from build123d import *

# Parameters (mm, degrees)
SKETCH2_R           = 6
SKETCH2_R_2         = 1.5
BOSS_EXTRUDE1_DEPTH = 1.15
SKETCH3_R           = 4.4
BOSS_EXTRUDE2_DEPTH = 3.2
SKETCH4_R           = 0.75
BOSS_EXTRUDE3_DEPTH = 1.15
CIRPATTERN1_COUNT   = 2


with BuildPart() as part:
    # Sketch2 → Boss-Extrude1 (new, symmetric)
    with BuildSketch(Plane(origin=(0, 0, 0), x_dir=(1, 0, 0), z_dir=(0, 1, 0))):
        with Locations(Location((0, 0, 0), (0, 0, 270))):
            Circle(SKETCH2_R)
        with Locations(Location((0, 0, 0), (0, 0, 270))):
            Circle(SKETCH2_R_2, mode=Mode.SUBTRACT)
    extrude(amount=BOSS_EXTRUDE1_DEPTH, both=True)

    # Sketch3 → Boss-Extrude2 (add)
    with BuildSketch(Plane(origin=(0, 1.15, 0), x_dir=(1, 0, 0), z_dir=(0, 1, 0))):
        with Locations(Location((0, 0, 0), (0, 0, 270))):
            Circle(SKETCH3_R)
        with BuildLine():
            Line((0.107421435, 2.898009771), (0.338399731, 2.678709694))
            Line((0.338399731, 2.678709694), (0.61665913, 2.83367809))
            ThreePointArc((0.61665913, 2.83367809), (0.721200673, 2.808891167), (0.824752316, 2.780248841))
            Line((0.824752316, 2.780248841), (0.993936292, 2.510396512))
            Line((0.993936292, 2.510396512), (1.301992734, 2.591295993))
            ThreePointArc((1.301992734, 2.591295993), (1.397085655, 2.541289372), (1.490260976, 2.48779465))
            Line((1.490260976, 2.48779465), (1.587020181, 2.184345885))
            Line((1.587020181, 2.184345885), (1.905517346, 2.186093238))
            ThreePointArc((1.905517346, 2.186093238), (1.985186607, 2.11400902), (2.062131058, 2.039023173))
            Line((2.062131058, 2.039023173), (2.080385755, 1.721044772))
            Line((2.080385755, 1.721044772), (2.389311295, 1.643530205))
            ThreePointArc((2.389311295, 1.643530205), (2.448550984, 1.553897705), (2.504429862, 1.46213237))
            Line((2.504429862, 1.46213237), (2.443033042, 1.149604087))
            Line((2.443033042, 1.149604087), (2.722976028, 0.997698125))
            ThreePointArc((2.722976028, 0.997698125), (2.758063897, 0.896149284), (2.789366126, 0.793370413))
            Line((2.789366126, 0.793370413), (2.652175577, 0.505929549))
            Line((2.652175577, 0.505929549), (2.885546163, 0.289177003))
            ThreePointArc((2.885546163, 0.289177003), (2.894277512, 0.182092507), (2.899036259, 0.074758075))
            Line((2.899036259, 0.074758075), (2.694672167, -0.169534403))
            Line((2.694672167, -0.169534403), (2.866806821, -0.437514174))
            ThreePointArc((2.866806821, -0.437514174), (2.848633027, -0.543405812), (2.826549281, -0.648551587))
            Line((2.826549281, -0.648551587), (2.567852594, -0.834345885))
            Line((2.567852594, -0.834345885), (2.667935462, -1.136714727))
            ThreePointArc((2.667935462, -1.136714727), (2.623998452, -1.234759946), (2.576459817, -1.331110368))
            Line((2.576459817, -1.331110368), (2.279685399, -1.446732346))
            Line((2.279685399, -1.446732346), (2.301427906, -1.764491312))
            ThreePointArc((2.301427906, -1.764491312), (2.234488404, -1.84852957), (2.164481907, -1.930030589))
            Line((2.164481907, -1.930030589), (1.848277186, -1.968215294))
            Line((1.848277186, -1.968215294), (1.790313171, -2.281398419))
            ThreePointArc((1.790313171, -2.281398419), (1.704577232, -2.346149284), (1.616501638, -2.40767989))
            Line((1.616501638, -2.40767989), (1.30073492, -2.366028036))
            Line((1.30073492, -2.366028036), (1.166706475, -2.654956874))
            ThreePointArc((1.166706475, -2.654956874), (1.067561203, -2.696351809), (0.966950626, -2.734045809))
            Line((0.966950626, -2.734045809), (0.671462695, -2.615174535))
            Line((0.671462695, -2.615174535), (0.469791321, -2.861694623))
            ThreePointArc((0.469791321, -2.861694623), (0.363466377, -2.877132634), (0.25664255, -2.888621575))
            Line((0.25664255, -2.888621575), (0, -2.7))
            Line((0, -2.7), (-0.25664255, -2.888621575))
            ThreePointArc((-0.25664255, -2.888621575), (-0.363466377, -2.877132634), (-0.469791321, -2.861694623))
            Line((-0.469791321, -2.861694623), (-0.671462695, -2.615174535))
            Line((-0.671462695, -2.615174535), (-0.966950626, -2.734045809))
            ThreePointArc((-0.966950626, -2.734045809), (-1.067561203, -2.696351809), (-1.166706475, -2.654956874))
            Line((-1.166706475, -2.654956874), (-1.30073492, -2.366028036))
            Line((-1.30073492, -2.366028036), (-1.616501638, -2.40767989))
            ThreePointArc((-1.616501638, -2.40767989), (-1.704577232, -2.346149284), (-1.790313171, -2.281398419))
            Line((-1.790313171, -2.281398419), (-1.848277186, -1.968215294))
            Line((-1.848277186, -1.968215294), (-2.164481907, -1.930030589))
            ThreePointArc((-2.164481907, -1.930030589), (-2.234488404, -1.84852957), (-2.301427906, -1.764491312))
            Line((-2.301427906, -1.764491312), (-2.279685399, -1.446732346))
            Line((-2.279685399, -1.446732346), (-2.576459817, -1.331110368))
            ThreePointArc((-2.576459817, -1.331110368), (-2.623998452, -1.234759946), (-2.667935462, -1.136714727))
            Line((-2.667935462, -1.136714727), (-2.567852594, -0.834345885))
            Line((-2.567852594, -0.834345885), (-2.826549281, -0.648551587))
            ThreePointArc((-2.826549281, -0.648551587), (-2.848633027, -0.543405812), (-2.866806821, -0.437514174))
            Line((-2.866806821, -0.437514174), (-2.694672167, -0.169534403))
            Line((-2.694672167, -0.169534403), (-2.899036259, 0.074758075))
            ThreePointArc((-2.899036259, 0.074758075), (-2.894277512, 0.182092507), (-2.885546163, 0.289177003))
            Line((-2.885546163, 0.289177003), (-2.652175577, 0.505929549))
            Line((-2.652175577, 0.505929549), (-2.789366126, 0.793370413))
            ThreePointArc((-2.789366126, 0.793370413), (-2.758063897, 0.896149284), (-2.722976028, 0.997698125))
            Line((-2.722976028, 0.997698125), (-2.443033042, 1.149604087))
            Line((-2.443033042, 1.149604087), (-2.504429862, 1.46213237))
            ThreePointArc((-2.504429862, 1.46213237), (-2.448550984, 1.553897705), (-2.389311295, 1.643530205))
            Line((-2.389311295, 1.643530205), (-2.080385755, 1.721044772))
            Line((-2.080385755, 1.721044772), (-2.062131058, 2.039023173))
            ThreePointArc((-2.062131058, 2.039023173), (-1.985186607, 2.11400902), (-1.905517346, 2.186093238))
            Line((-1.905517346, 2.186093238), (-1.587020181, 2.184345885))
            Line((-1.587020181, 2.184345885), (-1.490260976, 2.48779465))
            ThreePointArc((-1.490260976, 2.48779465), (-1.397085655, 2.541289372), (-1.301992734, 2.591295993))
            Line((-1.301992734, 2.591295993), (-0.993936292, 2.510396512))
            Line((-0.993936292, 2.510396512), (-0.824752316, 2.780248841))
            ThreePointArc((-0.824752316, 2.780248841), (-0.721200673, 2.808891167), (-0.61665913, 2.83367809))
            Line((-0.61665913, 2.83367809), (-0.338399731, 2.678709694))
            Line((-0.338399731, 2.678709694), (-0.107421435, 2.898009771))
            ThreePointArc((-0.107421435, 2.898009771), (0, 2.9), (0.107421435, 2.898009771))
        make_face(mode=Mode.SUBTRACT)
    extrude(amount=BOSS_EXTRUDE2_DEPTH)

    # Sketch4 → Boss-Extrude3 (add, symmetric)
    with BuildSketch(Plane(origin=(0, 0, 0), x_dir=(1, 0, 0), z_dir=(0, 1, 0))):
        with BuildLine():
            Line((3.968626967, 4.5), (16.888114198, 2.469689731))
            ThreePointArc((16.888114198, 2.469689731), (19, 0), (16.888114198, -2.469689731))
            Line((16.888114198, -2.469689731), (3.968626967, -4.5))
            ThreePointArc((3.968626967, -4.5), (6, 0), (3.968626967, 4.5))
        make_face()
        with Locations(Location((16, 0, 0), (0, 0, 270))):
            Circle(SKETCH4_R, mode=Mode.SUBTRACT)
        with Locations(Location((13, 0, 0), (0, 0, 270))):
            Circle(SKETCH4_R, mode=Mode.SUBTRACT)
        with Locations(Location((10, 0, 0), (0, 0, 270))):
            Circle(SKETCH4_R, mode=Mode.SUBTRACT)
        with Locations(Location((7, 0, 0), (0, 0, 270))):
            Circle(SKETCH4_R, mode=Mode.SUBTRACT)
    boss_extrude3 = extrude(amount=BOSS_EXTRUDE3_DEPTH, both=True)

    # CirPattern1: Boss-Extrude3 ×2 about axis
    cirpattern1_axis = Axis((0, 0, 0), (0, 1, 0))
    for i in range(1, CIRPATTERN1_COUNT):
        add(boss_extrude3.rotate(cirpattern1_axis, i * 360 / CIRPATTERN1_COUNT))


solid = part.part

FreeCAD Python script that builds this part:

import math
import FreeCAD as App
import Part
import Sketcher

V = App.Vector

doc = App.newDocument("Part")
body = doc.addObject("PartDesign::Body", "Body")

# Sketch on XZ plane
sketch1 = body.newObject("Sketcher::SketchObject", "Sketch")
sketch1.AttachmentSupport = (doc.getObject("XZ_Plane"), [""])
sketch1.MapMode = "FlatFace"
sketch1.addGeometry([
    Part.Circle(V(0, 0, 0), V(0, 0, 1), 6),
    Part.Circle(V(0, 0, 0), V(0, 0, 1), 1.5),
], False)
sketch1.addConstraint([
    Sketcher.Constraint("Coincident", 0, 3, -1, 1),
    Sketcher.Constraint("Coincident", 1, 3, -1, 1),
    Sketcher.Constraint("Diameter", 0, 12.0),
    Sketcher.Constraint("Diameter", 1, 3.0),
])
pad1 = body.newObject("PartDesign::Pad", "Pad")
pad1.Profile = sketch1
pad1.Length = 2.3
pad1.Midplane = True

# Sketch on XZ plane
sketch2 = body.newObject("Sketcher::SketchObject", "Sketch001")
sketch2.AttachmentSupport = (doc.getObject("XZ_Plane"), [""])
sketch2.MapMode = "FlatFace"
sketch2.AttachmentOffset = App.Placement(V(0, 0, -1.15), App.Rotation())
sketch2.addGeometry([
    Part.Circle(V(0, 0, 0), V(0, 0, 1), 4.4),  # 0
    Part.ArcOfCircle(Part.Circle(V(0, 0, 0), V(0, 0, 1), 2.9), math.radians(-92.12), math.radians(-87.88)),  # 1
    Part.LineSegment(V(0.11, -2.9, 0), V(0.34, -2.68, 0)),  # 2
    Part.LineSegment(V(0.34, -2.68, 0), V(0.62, -2.83, 0)),  # 3
    Part.ArcOfCircle(Part.Circle(V(0, 0, 0), V(0, 0, 1), 2.9), math.radians(-77.72), math.radians(-73.48)),  # 4
    Part.LineSegment(V(0.82, -2.78, 0), V(0.99, -2.51, 0)),  # 5
    Part.LineSegment(V(0.99, -2.51, 0), V(1.3, -2.59, 0)),  # 6
    Part.ArcOfCircle(Part.Circle(V(0, 0, 0), V(0, 0, 1), 2.9), math.radians(-63.32), math.radians(-59.08)),  # 7
    Part.LineSegment(V(1.49, -2.49, 0), V(1.59, -2.18, 0)),  # 8
    Part.LineSegment(V(1.59, -2.18, 0), V(1.91, -2.19, 0)),  # 9
    Part.ArcOfCircle(Part.Circle(V(0, 0, 0), V(0, 0, 1), 2.9), math.radians(-48.92), math.radians(-44.68)),  # 10
    Part.LineSegment(V(2.06, -2.04, 0), V(2.08, -1.72, 0)),  # 11
    Part.LineSegment(V(2.08, -1.72, 0), V(2.39, -1.64, 0)),  # 12
    Part.ArcOfCircle(Part.Circle(V(0, 0, 0), V(0, 0, 1), 2.9), math.radians(-34.52), math.radians(-30.28)),  # 13
    Part.LineSegment(V(2.5, -1.46, 0), V(2.44, -1.15, 0)),  # 14
    Part.LineSegment(V(2.44, -1.15, 0), V(2.72, -1, 0)),  # 15
    Part.ArcOfCircle(Part.Circle(V(0, 0, 0), V(0, 0, 1), 2.9), math.radians(-20.12), math.radians(-15.88)),  # 16
    Part.LineSegment(V(2.79, -0.79, 0), V(2.65, -0.51, 0)),  # 17
    Part.LineSegment(V(2.65, -0.51, 0), V(2.89, -0.29, 0)),  # 18
    Part.ArcOfCircle(Part.Circle(V(0, 0, 0), V(0, 0, 1), 2.9), math.radians(-5.72), math.radians(-1.48)),  # 19
    Part.LineSegment(V(2.9, -0.07, 0), V(2.69, 0.17, 0)),  # 20
    Part.LineSegment(V(2.69, 0.17, 0), V(2.87, 0.44, 0)),  # 21
    Part.ArcOfCircle(Part.Circle(V(0, 0, 0), V(0, 0, 1), 2.9), math.radians(8.68), math.radians(12.92)),  # 22
    Part.LineSegment(V(2.83, 0.65, 0), V(2.57, 0.83, 0)),  # 23
    Part.LineSegment(V(2.57, 0.83, 0), V(2.67, 1.14, 0)),  # 24
    Part.ArcOfCircle(Part.Circle(V(0, 0, 0), V(0, 0, 1), 2.9), math.radians(23.08), math.radians(27.32)),  # 25
    Part.LineSegment(V(2.58, 1.33, 0), V(2.28, 1.45, 0)),  # 26
    Part.LineSegment(V(2.28, 1.45, 0), V(2.3, 1.76, 0)),  # 27
    Part.ArcOfCircle(Part.Circle(V(0, 0, 0), V(0, 0, 1), 2.9), math.radians(37.48), math.radians(41.72)),  # 28
    Part.LineSegment(V(2.16, 1.93, 0), V(1.85, 1.97, 0)),  # 29
    Part.LineSegment(V(1.85, 1.97, 0), V(1.79, 2.28, 0)),  # 30
    Part.ArcOfCircle(Part.Circle(V(0, 0, 0), V(0, 0, 1), 2.9), math.radians(51.88), math.radians(56.12)),  # 31
    Part.LineSegment(V(1.62, 2.41, 0), V(1.3, 2.37, 0)),  # 32
    Part.LineSegment(V(1.3, 2.37, 0), V(1.17, 2.65, 0)),  # 33
    Part.ArcOfCircle(Part.Circle(V(0, 0, 0), V(0, 0, 1), 2.9), math.radians(66.28), math.radians(70.52)),  # 34
    Part.LineSegment(V(0.97, 2.73, 0), V(0.67, 2.62, 0)),  # 35
    Part.LineSegment(V(0.67, 2.62, 0), V(0.47, 2.86, 0)),  # 36
    Part.ArcOfCircle(Part.Circle(V(0, 0, 0), V(0, 0, 1), 2.9), math.radians(80.68), math.radians(84.92)),  # 37
    Part.LineSegment(V(0.26, 2.89, 0), V(0, 2.7, 0)),  # 38
    Part.LineSegment(V(0, 2.7, 0), V(-0.26, 2.89, 0)),  # 39
    Part.ArcOfCircle(Part.Circle(V(0, 0, 0), V(0, 0, 1), 2.9), math.radians(95.08), math.radians(99.32)),  # 40
    Part.LineSegment(V(-0.47, 2.86, 0), V(-0.67, 2.62, 0)),  # 41
    Part.LineSegment(V(-0.67, 2.62, 0), V(-0.97, 2.73, 0)),  # 42
    Part.ArcOfCircle(Part.Circle(V(0, 0, 0), V(0, 0, 1), 2.9), math.radians(109.48), math.radians(113.72)),  # 43
    Part.LineSegment(V(-1.17, 2.65, 0), V(-1.3, 2.37, 0)),  # 44
    Part.LineSegment(V(-1.3, 2.37, 0), V(-1.62, 2.41, 0)),  # 45
    Part.ArcOfCircle(Part.Circle(V(0, 0, 0), V(0, 0, 1), 2.9), math.radians(123.88), math.radians(128.12)),  # 46
    Part.LineSegment(V(-1.79, 2.28, 0), V(-1.85, 1.97, 0)),  # 47
    Part.LineSegment(V(-1.85, 1.97, 0), V(-2.16, 1.93, 0)),  # 48
    Part.ArcOfCircle(Part.Circle(V(0, 0, 0), V(0, 0, 1), 2.9), math.radians(138.28), math.radians(142.52)),  # 49
    Part.LineSegment(V(-2.3, 1.76, 0), V(-2.28, 1.45, 0)),  # 50
    Part.LineSegment(V(-2.28, 1.45, 0), V(-2.58, 1.33, 0)),  # 51
    Part.ArcOfCircle(Part.Circle(V(0, 0, 0), V(0, 0, 1), 2.9), math.radians(152.68), math.radians(156.92)),  # 52
    Part.LineSegment(V(-2.67, 1.14, 0), V(-2.57, 0.83, 0)),  # 53
    Part.LineSegment(V(-2.57, 0.83, 0), V(-2.83, 0.65, 0)),  # 54
    Part.ArcOfCircle(Part.Circle(V(0, 0, 0), V(0, 0, 1), 2.9), math.radians(167.08), math.radians(171.32)),  # 55
    Part.LineSegment(V(-2.87, 0.44, 0), V(-2.69, 0.17, 0)),  # 56
    Part.LineSegment(V(-2.69, 0.17, 0), V(-2.9, -0.07, 0)),  # 57
    Part.ArcOfCircle(Part.Circle(V(0, 0, 0), V(0, 0, 1), 2.9), math.radians(-178.52), math.radians(-174.28)),  # 58
    Part.LineSegment(V(-2.89, -0.29, 0), V(-2.65, -0.51, 0)),  # 59
    Part.LineSegment(V(-2.65, -0.51, 0), V(-2.79, -0.79, 0)),  # 60
    Part.ArcOfCircle(Part.Circle(V(0, 0, 0), V(0, 0, 1), 2.9), math.radians(-164.12), math.radians(-159.88)),  # 61
    Part.LineSegment(V(-2.72, -1, 0), V(-2.44, -1.15, 0)),  # 62
    Part.LineSegment(V(-2.44, -1.15, 0), V(-2.5, -1.46, 0)),  # 63
    Part.ArcOfCircle(Part.Circle(V(0, 0, 0), V(0, 0, 1), 2.9), math.radians(-149.72), math.radians(-145.48)),  # 64
    Part.LineSegment(V(-2.39, -1.64, 0), V(-2.08, -1.72, 0)),  # 65
    Part.LineSegment(V(-2.08, -1.72, 0), V(-2.06, -2.04, 0)),  # 66
    Part.ArcOfCircle(Part.Circle(V(0, 0, 0), V(0, 0, 1), 2.9), math.radians(-135.32), math.radians(-131.08)),  # 67
    Part.LineSegment(V(-1.91, -2.19, 0), V(-1.59, -2.18, 0)),  # 68
    Part.LineSegment(V(-1.59, -2.18, 0), V(-1.49, -2.49, 0)),  # 69
    Part.ArcOfCircle(Part.Circle(V(0, 0, 0), V(0, 0, 1), 2.9), math.radians(-120.92), math.radians(-116.68)),  # 70
    Part.LineSegment(V(-1.3, -2.59, 0), V(-0.99, -2.51, 0)),  # 71
    Part.LineSegment(V(-0.99, -2.51, 0), V(-0.82, -2.78, 0)),  # 72
    Part.ArcOfCircle(Part.Circle(V(0, 0, 0), V(0, 0, 1), 2.9), math.radians(-106.52), math.radians(-102.28)),  # 73
    Part.LineSegment(V(-0.62, -2.83, 0), V(-0.34, -2.68, 0)),  # 74
    Part.LineSegment(V(-0.34, -2.68, 0), V(-0.11, -2.9, 0)),  # 75
], False)
sketch2.addConstraint([
    Sketcher.Constraint("Coincident", 1, 2, 2, 1),
    Sketcher.Constraint("Coincident", 2, 2, 3, 1),
    Sketcher.Constraint("Coincident", 3, 2, 4, 1),
    Sketcher.Constraint("Coincident", 4, 2, 5, 1),
    Sketcher.Constraint("Coincident", 5, 2, 6, 1),
    Sketcher.Constraint("Coincident", 6, 2, 7, 1),
    Sketcher.Constraint("Coincident", 7, 2, 8, 1),
    Sketcher.Constraint("Coincident", 8, 2, 9, 1),
    Sketcher.Constraint("Coincident", 9, 2, 10, 1),
    Sketcher.Constraint("Coincident", 10, 2, 11, 1),
    Sketcher.Constraint("Coincident", 11, 2, 12, 1),
    Sketcher.Constraint("Coincident", 12, 2, 13, 1),
    Sketcher.Constraint("Coincident", 13, 2, 14, 1),
    Sketcher.Constraint("Coincident", 14, 2, 15, 1),
    Sketcher.Constraint("Coincident", 15, 2, 16, 1),
    Sketcher.Constraint("Coincident", 16, 2, 17, 1),
    Sketcher.Constraint("Coincident", 17, 2, 18, 1),
    Sketcher.Constraint("Coincident", 18, 2, 19, 1),
    Sketcher.Constraint("Coincident", 19, 2, 20, 1),
    Sketcher.Constraint("Coincident", 20, 2, 21, 1),
    Sketcher.Constraint("Coincident", 21, 2, 22, 1),
    Sketcher.Constraint("Coincident", 22, 2, 23, 1),
    Sketcher.Constraint("Coincident", 23, 2, 24, 1),
    Sketcher.Constraint("Coincident", 24, 2, 25, 1),
    Sketcher.Constraint("Coincident", 25, 2, 26, 1),
    Sketcher.Constraint("Coincident", 26, 2, 27, 1),
    Sketcher.Constraint("Coincident", 27, 2, 28, 1),
    Sketcher.Constraint("Coincident", 28, 2, 29, 1),
    Sketcher.Constraint("Coincident", 29, 2, 30, 1),
    Sketcher.Constraint("Coincident", 30, 2, 31, 1),
    Sketcher.Constraint("Coincident", 31, 2, 32, 1),
    Sketcher.Constraint("Coincident", 32, 2, 33, 1),
    Sketcher.Constraint("Coincident", 33, 2, 34, 1),
    Sketcher.Constraint("Coincident", 34, 2, 35, 1),
    Sketcher.Constraint("Coincident", 35, 2, 36, 1),
    Sketcher.Constraint("Coincident", 36, 2, 37, 1),
    Sketcher.Constraint("Coincident", 37, 2, 38, 1),
    Sketcher.Constraint("Coincident", 38, 2, 39, 1),
    Sketcher.Constraint("Coincident", 39, 2, 40, 1),
    Sketcher.Constraint("Coincident", 40, 2, 41, 1),
    Sketcher.Constraint("Coincident", 41, 2, 42, 1),
    Sketcher.Constraint("Coincident", 42, 2, 43, 1),
    Sketcher.Constraint("Coincident", 43, 2, 44, 1),
    Sketcher.Constraint("Coincident", 44, 2, 45, 1),
    Sketcher.Constraint("Coincident", 45, 2, 46, 1),
    Sketcher.Constraint("Coincident", 46, 2, 47, 1),
    Sketcher.Constraint("Coincident", 47, 2, 48, 1),
    Sketcher.Constraint("Coincident", 48, 2, 49, 1),
    Sketcher.Constraint("Coincident", 49, 2, 50, 1),
    Sketcher.Constraint("Coincident", 50, 2, 51, 1),
    Sketcher.Constraint("Coincident", 51, 2, 52, 1),
    Sketcher.Constraint("Coincident", 52, 2, 53, 1),
    Sketcher.Constraint("Coincident", 53, 2, 54, 1),
    Sketcher.Constraint("Coincident", 54, 2, 55, 1),
    Sketcher.Constraint("Coincident", 55, 2, 56, 1),
    Sketcher.Constraint("Coincident", 56, 2, 57, 1),
    Sketcher.Constraint("Coincident", 57, 2, 58, 1),
    Sketcher.Constraint("Coincident", 58, 2, 59, 1),
    Sketcher.Constraint("Coincident", 59, 2, 60, 1),
    Sketcher.Constraint("Coincident", 60, 2, 61, 1),
    Sketcher.Constraint("Coincident", 61, 2, 62, 1),
    Sketcher.Constraint("Coincident", 62, 2, 63, 1),
    Sketcher.Constraint("Coincident", 63, 2, 64, 1),
    Sketcher.Constraint("Coincident", 64, 2, 65, 1),
    Sketcher.Constraint("Coincident", 65, 2, 66, 1),
    Sketcher.Constraint("Coincident", 66, 2, 67, 1),
    Sketcher.Constraint("Coincident", 67, 2, 68, 1),
    Sketcher.Constraint("Coincident", 68, 2, 69, 1),
    Sketcher.Constraint("Coincident", 69, 2, 70, 1),
    Sketcher.Constraint("Coincident", 70, 2, 71, 1),
    Sketcher.Constraint("Coincident", 71, 2, 72, 1),
    Sketcher.Constraint("Coincident", 72, 2, 73, 1),
    Sketcher.Constraint("Coincident", 73, 2, 74, 1),
    Sketcher.Constraint("Coincident", 74, 2, 75, 1),
    Sketcher.Constraint("Coincident", 75, 2, 1, 1),
    Sketcher.Constraint("Coincident", 0, 3, -1, 1),
    Sketcher.Constraint("Coincident", 1, 3, -1, 1),
    Sketcher.Constraint("Coincident", 4, 3, -1, 1),
    Sketcher.Constraint("Coincident", 7, 3, -1, 1),
    Sketcher.Constraint("Coincident", 10, 3, -1, 1),
    Sketcher.Constraint("Coincident", 13, 3, -1, 1),
    Sketcher.Constraint("Coincident", 16, 3, -1, 1),
    Sketcher.Constraint("Coincident", 19, 3, -1, 1),
    Sketcher.Constraint("Coincident", 22, 3, -1, 1),
    Sketcher.Constraint("Coincident", 25, 3, -1, 1),
    Sketcher.Constraint("Coincident", 28, 3, -1, 1),
    Sketcher.Constraint("Coincident", 31, 3, -1, 1),
    Sketcher.Constraint("Coincident", 34, 3, -1, 1),
    Sketcher.Constraint("Coincident", 37, 3, -1, 1),
    Sketcher.Constraint("Coincident", 40, 3, -1, 1),
    Sketcher.Constraint("Coincident", 43, 3, -1, 1),
    Sketcher.Constraint("Coincident", 46, 3, -1, 1),
    Sketcher.Constraint("Coincident", 49, 3, -1, 1),
    Sketcher.Constraint("Coincident", 52, 3, -1, 1),
    Sketcher.Constraint("Coincident", 55, 3, -1, 1),
    Sketcher.Constraint("Coincident", 58, 3, -1, 1),
    Sketcher.Constraint("Coincident", 61, 3, -1, 1),
    Sketcher.Constraint("Coincident", 64, 3, -1, 1),
    Sketcher.Constraint("Coincident", 67, 3, -1, 1),
    Sketcher.Constraint("Coincident", 70, 3, -1, 1),
    Sketcher.Constraint("Coincident", 73, 3, -1, 1),
    Sketcher.Constraint("Equal", 1, 4),
    Sketcher.Constraint("Equal", 4, 7),
    Sketcher.Constraint("Equal", 7, 10),
    Sketcher.Constraint("Equal", 10, 13),
    Sketcher.Constraint("Equal", 13, 16),
    Sketcher.Constraint("Equal", 16, 19),
    Sketcher.Constraint("Equal", 19, 22),
    Sketcher.Constraint("Equal", 22, 25),
    Sketcher.Constraint("Equal", 25, 28),
    Sketcher.Constraint("Equal", 28, 31),
    Sketcher.Constraint("Equal", 31, 34),
    Sketcher.Constraint("Equal", 34, 37),
    Sketcher.Constraint("Equal", 37, 40),
    Sketcher.Constraint("Equal", 40, 43),
    Sketcher.Constraint("Equal", 43, 46),
    Sketcher.Constraint("Equal", 46, 49),
    Sketcher.Constraint("Equal", 49, 52),
    Sketcher.Constraint("Equal", 52, 55),
    Sketcher.Constraint("Equal", 55, 58),
    Sketcher.Constraint("Equal", 58, 61),
    Sketcher.Constraint("Equal", 61, 64),
    Sketcher.Constraint("Equal", 64, 67),
    Sketcher.Constraint("Equal", 67, 70),
    Sketcher.Constraint("Equal", 70, 73),
    Sketcher.Constraint("Symmetric", 35, 2, 41, 2, -2),
    Sketcher.Constraint("Symmetric", 32, 2, 44, 2, -2),
    Sketcher.Constraint("Symmetric", 29, 2, 47, 2, -2),
    Sketcher.Constraint("Symmetric", 26, 2, 50, 2, -2),
    Sketcher.Constraint("Symmetric", 23, 2, 53, 2, -2),
    Sketcher.Constraint("Symmetric", 20, 2, 56, 2, -2),
    Sketcher.Constraint("Symmetric", 17, 2, 59, 2, -2),
    Sketcher.Constraint("Symmetric", 14, 2, 62, 2, -2),
    Sketcher.Constraint("Symmetric", 11, 2, 65, 2, -2),
    Sketcher.Constraint("Symmetric", 8, 2, 68, 2, -2),
    Sketcher.Constraint("Symmetric", 5, 2, 71, 2, -2),
    Sketcher.Constraint("Symmetric", 2, 2, 74, 2, -2),
    Sketcher.Constraint("PointOnObject", 38, 2, -2),
    Sketcher.Constraint("Horizontal", 37, 2, 39, 2),
    Sketcher.Constraint("Horizontal", 36, 2, 40, 2),
    Sketcher.Constraint("Horizontal", 34, 2, 42, 2),
    Sketcher.Constraint("Horizontal", 33, 2, 43, 2),
    Sketcher.Constraint("Horizontal", 31, 2, 45, 2),
    Sketcher.Constraint("Horizontal", 30, 2, 46, 2),
    Sketcher.Constraint("Horizontal", 28, 2, 48, 2),
    Sketcher.Constraint("Horizontal", 27, 2, 49, 2),
    Sketcher.Constraint("Horizontal", 25, 2, 51, 2),
    Sketcher.Constraint("Horizontal", 24, 2, 52, 2),
    Sketcher.Constraint("Horizontal", 22, 2, 54, 2),
    Sketcher.Constraint("Horizontal", 21, 2, 55, 2),
    Sketcher.Constraint("Horizontal", 19, 2, 57, 2),
    Sketcher.Constraint("Horizontal", 18, 2, 58, 2),
    Sketcher.Constraint("Horizontal", 16, 2, 60, 2),
    Sketcher.Constraint("Horizontal", 15, 2, 61, 2),
    Sketcher.Constraint("Horizontal", 13, 2, 63, 2),
    Sketcher.Constraint("Horizontal", 12, 2, 64, 2),
    Sketcher.Constraint("Horizontal", 10, 2, 66, 2),
    Sketcher.Constraint("Horizontal", 9, 2, 67, 2),
    Sketcher.Constraint("Horizontal", 7, 2, 69, 2),
    Sketcher.Constraint("Horizontal", 6, 2, 70, 2),
    Sketcher.Constraint("Horizontal", 4, 2, 72, 2),
    Sketcher.Constraint("Horizontal", 3, 2, 73, 2),
    Sketcher.Constraint("Horizontal", 1, 2, 75, 2),
    Sketcher.Constraint("Equal", 2, 3),
    Sketcher.Constraint("Equal", 3, 5),
    Sketcher.Constraint("Equal", 5, 6),
    Sketcher.Constraint("Equal", 6, 8),
    Sketcher.Constraint("Equal", 8, 9),
    Sketcher.Constraint("Equal", 9, 11),
    Sketcher.Constraint("Equal", 11, 12),
    Sketcher.Constraint("Equal", 12, 14),
    Sketcher.Constraint("Equal", 14, 15),
    Sketcher.Constraint("Equal", 15, 17),
    Sketcher.Constraint("Equal", 17, 18),
    Sketcher.Constraint("Equal", 18, 20),
    Sketcher.Constraint("Equal", 20, 21),
    Sketcher.Constraint("Equal", 21, 23),
    Sketcher.Constraint("Equal", 23, 24),
    Sketcher.Constraint("Equal", 24, 26),
    Sketcher.Constraint("Equal", 26, 27),
    Sketcher.Constraint("Equal", 27, 29),
    Sketcher.Constraint("Equal", 29, 30),
    Sketcher.Constraint("Equal", 30, 32),
    Sketcher.Constraint("Equal", 32, 33),
    Sketcher.Constraint("Equal", 33, 35),
    Sketcher.Constraint("Equal", 35, 36),
    Sketcher.Constraint("Equal", 36, 38),
    Sketcher.Constraint("Diameter", 0, 8.8),
    Sketcher.Constraint("Radius", 1, 2.899999),
    Sketcher.Constraint("DistanceY", -1, 1, 38, 2, 2.7),
    Sketcher.Constraint("Distance", 2, 0.318502),
    Sketcher.Constraint("DistanceX", -1, 1, 2, 2, 0.3384),
    Sketcher.Constraint("DistanceY", 15, 2, -1, 1, 0.997698),
    Sketcher.Constraint("DistanceY", -1, 1, 30, 2, 2.281398),
    Sketcher.Constraint("DistanceX", -1, 1, 31, 2, 1.616502),
    Sketcher.Constraint("DistanceX", -1, 1, 1, 2, 0.107421),
    Sketcher.Constraint("DistanceY", 4, 2, -1, 1, 2.780249),
    Sketcher.Constraint("DistanceX", -1, 1, 7, 2, 1.490261),
    Sketcher.Constraint("DistanceX", -1, 1, 8, 2, 1.58702),
    Sketcher.Constraint("DistanceX", -1, 1, 10, 2, 2.062131),
    Sketcher.Constraint("DistanceX", -1, 1, 12, 2, 2.389311),
    Sketcher.Constraint("DistanceX", -1, 1, 13, 2, 2.50443),
    Sketcher.Constraint("DistanceY", 16, 2, -1, 1, 0.79337),
    Sketcher.Constraint("DistanceY", 17, 2, -1, 1, 0.50593),
    Sketcher.Constraint("DistanceY", 19, 2, -1, 1, 0.074758),
    Sketcher.Constraint("DistanceX", -1, 1, 22, 2, 2.826549),
    Sketcher.Constraint("DistanceX", -1, 1, 25, 2, 2.57646),
    Sketcher.Constraint("DistanceY", -1, 1, 27, 2, 1.764491),
    Sketcher.Constraint("DistanceX", -1, 1, 28, 2, 2.164482),
    Sketcher.Constraint("DistanceY", -1, 1, 32, 2, 2.366028),
    Sketcher.Constraint("DistanceX", -1, 1, 34, 2, 0.966951),
    Sketcher.Constraint("DistanceX", -1, 1, 36, 2, 0.469791),
    Sketcher.Constraint("DistanceX", -1, 1, 5, 2, 0.993936),
    Sketcher.Constraint("DistanceX", -1, 1, 20, 2, 2.694672),
    Sketcher.Constraint("DistanceX", -1, 1, 23, 2, 2.567853),
])
pad2 = body.newObject("PartDesign::Pad", "Pad001")
pad2.Profile = sketch2
pad2.Length = 3.2
pad2.Reversed = True

# Sketch on XZ plane
sketch3 = body.newObject("Sketcher::SketchObject", "Sketch002")
sketch3.AttachmentSupport = (doc.getObject("XZ_Plane"), [""])
sketch3.MapMode = "FlatFace"
sketch3.addGeometry([
    Part.LineSegment(V(16.9, -2.5, 0), V(4, -4.5, 0)),  # 0
    Part.ArcOfCircle(Part.Circle(V(0, 0, 0), V(0, 0, 1), 6), math.radians(-49), math.radians(49)),  # 1
    Part.LineSegment(V(4, 4.5, 0), V(16.9, 2.5, 0)),  # 2
    Part.ArcOfCircle(Part.Circle(V(16.5, 0, 0), V(0, 0, 1), 2.5), math.radians(-81), math.radians(81)),  # 3
    Part.Circle(V(16, 0, 0), V(0, 0, 1), 0.8),  # 4
    Part.Circle(V(13, 0, 0), V(0, 0, 1), 0.8),  # 5
    Part.Circle(V(10, 0, 0), V(0, 0, 1), 0.8),  # 6
    Part.Circle(V(7, 0, 0), V(0, 0, 1), 0.8),  # 7
], False)
sketch3.addConstraint([
    Sketcher.Constraint("Coincident", 0, 2, 1, 1),
    Sketcher.Constraint("Coincident", 1, 2, 2, 1),
    Sketcher.Constraint("Tangent", 2, 2, 3, 2),
    Sketcher.Constraint("Tangent", 3, 1, 0, 1),
    Sketcher.Constraint("Coincident", 1, 3, -1, 1),
    Sketcher.Constraint("Equal", 4, 5),
    Sketcher.Constraint("Equal", 5, 6),
    Sketcher.Constraint("Equal", 6, 7),
    Sketcher.Constraint("Symmetric", 2, 2, 3, 1, -1),
    Sketcher.Constraint("PointOnObject", 4, 3, -1),
    Sketcher.Constraint("PointOnObject", 5, 3, -1),
    Sketcher.Constraint("PointOnObject", 6, 3, -1),
    Sketcher.Constraint("PointOnObject", 7, 3, -1),
    Sketcher.Constraint("Radius", 1, 6.0),
    Sketcher.Constraint("Diameter", 4, 1.5),
    Sketcher.Constraint("Radius", 3, 2.5),
    Sketcher.Constraint("DistanceX", -1, 1, 4, 3, 16.0),
    Sketcher.Constraint("DistanceX", -1, 1, 5, 3, 13.0),
    Sketcher.Constraint("DistanceX", -1, 1, 6, 3, 10.0),
    Sketcher.Constraint("DistanceX", -1, 1, 7, 3, 7.0),
    Sketcher.Constraint("DistanceY", 0, 2, 1, 2, 9.0),
    Sketcher.Constraint("DistanceX", -1, 1, 3, 3, 16.5),
])
pad3 = body.newObject("PartDesign::Pad", "Pad002")
pad3.Profile = sketch3
pad3.Length = 2.3
pad3.Midplane = True
doc.recompute()

polarpattern = body.newObject("PartDesign::PolarPattern", "PolarPattern")
polarpattern.Originals = [pad3]
polarpattern.Axis = (doc.getObject("Y_Axis"), [""])
polarpattern.Angle = 360
polarpattern.Occurrences = 2
body.Tip = polarpattern

doc.recompute()
